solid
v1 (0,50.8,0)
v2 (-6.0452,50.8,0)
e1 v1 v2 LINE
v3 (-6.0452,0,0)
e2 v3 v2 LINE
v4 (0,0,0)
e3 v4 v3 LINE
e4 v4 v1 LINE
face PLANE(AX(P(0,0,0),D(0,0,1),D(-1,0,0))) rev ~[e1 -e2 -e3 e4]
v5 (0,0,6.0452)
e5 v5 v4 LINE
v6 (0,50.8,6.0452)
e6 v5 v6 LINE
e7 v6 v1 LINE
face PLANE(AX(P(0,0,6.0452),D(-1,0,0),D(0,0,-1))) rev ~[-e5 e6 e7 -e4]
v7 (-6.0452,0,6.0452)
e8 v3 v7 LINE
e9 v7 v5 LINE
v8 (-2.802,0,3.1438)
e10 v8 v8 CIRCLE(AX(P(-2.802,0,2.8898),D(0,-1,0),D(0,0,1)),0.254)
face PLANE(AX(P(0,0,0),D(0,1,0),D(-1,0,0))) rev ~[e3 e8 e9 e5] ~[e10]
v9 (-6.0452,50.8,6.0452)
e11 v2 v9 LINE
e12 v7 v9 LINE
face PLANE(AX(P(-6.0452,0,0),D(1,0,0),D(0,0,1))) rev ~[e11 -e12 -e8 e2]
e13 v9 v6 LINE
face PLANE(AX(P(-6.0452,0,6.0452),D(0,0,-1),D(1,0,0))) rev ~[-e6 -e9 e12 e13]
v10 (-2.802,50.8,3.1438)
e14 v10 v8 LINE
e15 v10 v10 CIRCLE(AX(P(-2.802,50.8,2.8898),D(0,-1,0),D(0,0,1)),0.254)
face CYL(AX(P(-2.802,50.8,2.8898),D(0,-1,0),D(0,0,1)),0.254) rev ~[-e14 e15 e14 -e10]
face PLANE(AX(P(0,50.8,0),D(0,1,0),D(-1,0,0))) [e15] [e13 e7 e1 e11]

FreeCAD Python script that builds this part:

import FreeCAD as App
import Part
import Sketcher
Q = App.Units.Quantity


def add_polygon(sketch, points):
    """Adds a closed chain of lines whose ends are joined by coincident constraints."""
    first, n = sketch.GeometryCount, len(points)
    for a, b in zip(points, points[1:] + points[:1]):
        sketch.addGeometry(Part.LineSegment(App.Vector(*a, 0), App.Vector(*b, 0)), False)
    for i in range(n):
        sketch.addConstraint(Sketcher.Constraint("Coincident", first + i, 2, first + (i + 1) % n, 1))

doc = App.newDocument("Part")
body = doc.addObject("PartDesign::Body", "Body")

# Sketch on XZ plane
sketch1 = doc.addObject("Sketcher::SketchObject", "Sketch")
body.addObject(sketch1)
sketch1.AttachmentSupport = (doc.XZ_Plane, [""])
sketch1.MapMode = "FlatFace"
add_polygon(sketch1, [(0, 6), (0, 0), (-6, 0), (-6, 6)])  # lines 0-3
sketch1.addConstraint(Sketcher.Constraint("Vertical", 0))
sketch1.addConstraint(Sketcher.Constraint("Horizontal", 1))
sketch1.addConstraint(Sketcher.Constraint("Vertical", 2))
sketch1.addConstraint(Sketcher.Constraint("Horizontal", 3))
sketch1.addConstraint(Sketcher.Constraint("Coincident", 0, 2, -1, 1))
sketch1.addConstraint(Sketcher.Constraint("Equal", 3, 0))
sketch1.addConstraint(Sketcher.Constraint("DistanceX", 1, 2, 1, 1, Q("0.238 in")))
pad1 = doc.addObject("PartDesign::Pad", "Pad")
body.addObject(pad1)
pad1.Profile = sketch1
pad1.Length = Q("2 in")
pad1.Reversed = True

# Sketch on XZ plane
sketch2 = doc.addObject("Sketcher::SketchObject", "Sketch001")
body.addObject(sketch2)
sketch2.AttachmentSupport = (doc.XZ_Plane, [""])
sketch2.MapMode = "FlatFace"
sketch2.AttachmentOffset = App.Placement(App.Vector(0, 0, -2 * 25.4), App.Rotation())
sketch2.addGeometry(Part.Circle(App.Vector(-2.8, 2.89, 0), App.Vector(0, 0, 1), 0.25), False)
sketch2.addConstraint(Sketcher.Constraint("Diameter", 0, Q("0.02 in")))
sketch2.addConstraint(Sketcher.Constraint("DistanceX", 0, 3, -1, 1, 2.802))
sketch2.addConstraint(Sketcher.Constraint("DistanceY", -1, 1, 0, 3, 2.8898))
doc.recompute()
hole = doc.addObject("PartDesign::Hole", "Hole")
body.addObject(hole)
hole.Profile = sketch2
hole.ThreadType = "None"
hole.Diameter = Q("0.02 in")
hole.DepthType = "ThroughAll"
hole.Reversed = True

doc.recompute()
